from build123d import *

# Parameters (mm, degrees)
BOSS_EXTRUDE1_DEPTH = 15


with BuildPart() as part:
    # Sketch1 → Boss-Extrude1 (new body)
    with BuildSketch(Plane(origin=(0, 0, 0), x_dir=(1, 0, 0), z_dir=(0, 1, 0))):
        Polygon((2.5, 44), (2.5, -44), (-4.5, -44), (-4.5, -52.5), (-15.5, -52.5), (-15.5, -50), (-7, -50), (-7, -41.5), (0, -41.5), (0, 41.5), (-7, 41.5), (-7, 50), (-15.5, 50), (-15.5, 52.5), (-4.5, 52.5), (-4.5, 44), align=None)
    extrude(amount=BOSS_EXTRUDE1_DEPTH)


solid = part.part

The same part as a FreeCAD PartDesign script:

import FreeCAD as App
import Part
import Sketcher

V = App.Vector

doc = App.newDocument("Part")
body = doc.addObject("PartDesign::Body", "Body")

# Sketch on XZ plane
sketch1 = doc.addObject("Sketcher::SketchObject", "Sketch")
body.addObject(sketch1)
sketch1.AttachmentSupport = (doc.XZ_Plane, [""])
sketch1.MapMode = "FlatFace"
sketch1.addGeometry([
    Part.LineSegment(V(2.5, 44, 0), V(2.5, -44, 0)),  # 0
    Part.LineSegment(V(2.5, -44, 0), V(-4.5, -44, 0)),  # 1
    Part.LineSegment(V(-4.5, -44, 0), V(-4.5, -52.5, 0)),  # 2
    Part.LineSegment(V(-4.5, -52.5, 0), V(-15.5, -52.5, 0)),  # 3
    Part.LineSegment(V(-15.5, -52.5, 0), V(-15.5, -50, 0)),  # 4
    Part.LineSegment(V(-15.5, -50, 0), V(-7, -50, 0)),  # 5
    Part.LineSegment(V(-7, -50, 0), V(-7, -41.5, 0)),  # 6
    Part.LineSegment(V(-7, -41.5, 0), V(0, -41.5, 0)),  # 7
    Part.LineSegment(V(0, -41.5, 0), V(0, 41.5, 0)),  # 8
    Part.LineSegment(V(0, 41.5, 0), V(-7, 41.5, 0)),  # 9
    Part.LineSegment(V(-7, 41.5, 0), V(-7, 50, 0)),  # 10
    Part.LineSegment(V(-7, 50, 0), V(-15.5, 50, 0)),  # 11
    Part.LineSegment(V(-15.5, 50, 0), V(-15.5, 52.5, 0)),  # 12
    Part.LineSegment(V(-15.5, 52.5, 0), V(-4.5, 52.5, 0)),  # 13
    Part.LineSegment(V(-4.5, 52.5, 0), V(-4.5, 44, 0)),  # 14
    Part.LineSegment(V(-4.5, 44, 0), V(2.5, 44, 0)),  # 15
], False)
sketch1.addConstraint([
    Sketcher.Constraint("Coincident", 0, 2, 1, 1),
    Sketcher.Constraint("Coincident", 1, 2, 2, 1),
    Sketcher.Constraint("Coincident", 2, 2, 3, 1),
    Sketcher.Constraint("Coincident", 3, 2, 4, 1),
    Sketcher.Constraint("Coincident", 4, 2, 5, 1),
    Sketcher.Constraint("Coincident", 5, 2, 6, 1),
    Sketcher.Constraint("Coincident", 6, 2, 7, 1),
    Sketcher.Constraint("Coincident", 7, 2, 8, 1),
    Sketcher.Constraint("Coincident", 8, 2, 9, 1),
    Sketcher.Constraint("Coincident", 9, 2, 10, 1),
    Sketcher.Constraint("Coincident", 10, 2, 11, 1),
    Sketcher.Constraint("Coincident", 11, 2, 12, 1),
    Sketcher.Constraint("Coincident", 12, 2, 13, 1),
    Sketcher.Constraint("Coincident", 13, 2, 14, 1),
    Sketcher.Constraint("Coincident", 14, 2, 15, 1),
    Sketcher.Constraint("Coincident", 15, 2, 0, 1),
    Sketcher.Constraint("Vertical", 0),
    Sketcher.Constraint("Horizontal", 1),
    Sketcher.Constraint("Vertical", 2),
    Sketcher.Constraint("Horizontal", 3),
    Sketcher.Constraint("Vertical", 4),
    Sketcher.Constraint("Horizontal", 5),
    Sketcher.Constraint("Vertical", 6),
    Sketcher.Constraint("Horizontal", 7),
    Sketcher.Constraint("Vertical", 8),
    Sketcher.Constraint("Horizontal", 9),
    Sketcher.Constraint("Vertical", 10),
    Sketcher.Constraint("Horizontal", 11),
    Sketcher.Constraint("Vertical", 12),
    Sketcher.Constraint("Horizontal", 13),
    Sketcher.Constraint("Vertical", 14),
    Sketcher.Constraint("Horizontal", 15),
    Sketcher.Constraint("Symmetric", 7, 2, 8, 2, -1, 1),
    Sketcher.Constraint("Symmetric", 5, 2, 10, 2, -1),
    Sketcher.Constraint("Symmetric", 3, 2, 12, 2, -1),
    Sketcher.Constraint("Symmetric", 1, 2, 14, 2, -1),
    Sketcher.Constraint("Equal", 1, 7),
    Sketcher.Constraint("Equal", 11, 2),
    Sketcher.Constraint("Equal", 2, 6),
    Sketcher.Constraint("DistanceX", 1, 2, 1, 1, 7.0),
    Sketcher.Constraint("DistanceX", 3, 2, 3, 1, 11.0),
    Sketcher.Constraint("DistanceY", 0, 2, 0, 1, 88.0),
    Sketcher.Constraint("DistanceY", 8, 1, 8, 2, 83.0),
    Sketcher.Constraint("DistanceX", 5, 1, 5, 2, 8.5),
])
pad1 = doc.addObject("PartDesign::Pad", "Pad")
body.addObject(pad1)
pad1.Profile = sketch1
pad1.Length = 15
pad1.Reversed = True

doc.recompute()
